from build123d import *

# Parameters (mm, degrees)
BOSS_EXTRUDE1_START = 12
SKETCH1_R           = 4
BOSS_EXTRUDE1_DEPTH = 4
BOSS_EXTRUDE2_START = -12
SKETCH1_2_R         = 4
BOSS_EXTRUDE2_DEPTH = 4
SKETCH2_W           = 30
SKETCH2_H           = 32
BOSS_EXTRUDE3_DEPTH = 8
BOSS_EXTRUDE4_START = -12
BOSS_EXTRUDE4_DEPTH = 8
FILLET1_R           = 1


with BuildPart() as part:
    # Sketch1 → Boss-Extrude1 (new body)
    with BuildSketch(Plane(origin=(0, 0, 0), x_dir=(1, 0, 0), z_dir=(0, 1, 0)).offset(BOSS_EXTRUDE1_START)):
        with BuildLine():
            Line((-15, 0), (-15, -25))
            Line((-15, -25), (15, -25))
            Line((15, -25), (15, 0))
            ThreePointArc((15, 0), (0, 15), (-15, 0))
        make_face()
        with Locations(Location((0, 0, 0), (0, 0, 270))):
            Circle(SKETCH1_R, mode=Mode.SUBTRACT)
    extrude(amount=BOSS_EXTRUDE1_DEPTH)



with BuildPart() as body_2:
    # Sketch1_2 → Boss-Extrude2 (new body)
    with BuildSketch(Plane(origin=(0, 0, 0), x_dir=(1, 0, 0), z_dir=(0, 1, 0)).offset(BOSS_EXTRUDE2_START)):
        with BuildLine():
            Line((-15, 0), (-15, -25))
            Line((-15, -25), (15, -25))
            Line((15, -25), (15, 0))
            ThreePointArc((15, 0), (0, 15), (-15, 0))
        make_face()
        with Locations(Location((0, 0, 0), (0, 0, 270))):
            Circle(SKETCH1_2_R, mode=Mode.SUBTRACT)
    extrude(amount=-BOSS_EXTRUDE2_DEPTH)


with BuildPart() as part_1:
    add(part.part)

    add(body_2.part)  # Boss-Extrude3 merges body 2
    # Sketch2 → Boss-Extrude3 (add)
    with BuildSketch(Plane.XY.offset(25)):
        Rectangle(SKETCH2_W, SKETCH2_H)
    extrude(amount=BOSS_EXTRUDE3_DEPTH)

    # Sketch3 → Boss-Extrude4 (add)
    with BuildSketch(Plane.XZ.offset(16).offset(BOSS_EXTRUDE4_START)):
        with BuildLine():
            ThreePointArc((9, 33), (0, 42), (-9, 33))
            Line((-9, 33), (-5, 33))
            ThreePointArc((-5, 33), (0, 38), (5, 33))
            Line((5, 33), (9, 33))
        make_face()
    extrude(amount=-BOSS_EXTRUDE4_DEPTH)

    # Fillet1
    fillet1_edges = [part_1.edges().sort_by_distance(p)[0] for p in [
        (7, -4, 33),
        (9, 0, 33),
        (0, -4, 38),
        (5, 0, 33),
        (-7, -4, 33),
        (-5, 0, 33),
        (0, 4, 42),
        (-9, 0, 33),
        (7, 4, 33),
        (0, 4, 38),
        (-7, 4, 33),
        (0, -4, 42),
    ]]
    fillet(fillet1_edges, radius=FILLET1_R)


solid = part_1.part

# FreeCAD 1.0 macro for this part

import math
import FreeCAD as App
import Part
import Sketcher

V = App.Vector
Q = App.Units.Quantity


def edges_at(feature, points):
    """Names of the edges that pass closest to the given points."""
    edges = feature.Shape.Edges
    near = lambda p: min(range(len(edges)), key=lambda i: edges[i].distToShape(Part.Vertex(*p))[0])
    return sorted({f"Edge{near(p) + 1}" for p in points})

doc = App.newDocument("Part")
body = doc.addObject("PartDesign::Body", "Body")

sketch1 = body.newObject("Sketcher::SketchObject", "Sketch")
sketch1.AttachmentSupport = (doc.getObject("XZ_Plane"), [""])
sketch1.MapMode = "FlatFace"
sketch1.AttachmentOffset = App.Placement(V(0, 0, -12), App.Rotation())
sketch1.addGeometry(Part.LineSegment(V(-15, 0, 0), V(-15, 25, 0)), False)
sketch1.addGeometry(Part.LineSegment(V(-15, 25, 0), V(15, 25, 0)), False)
sketch1.addGeometry(Part.LineSegment(V(15, 25, 0), V(15, 0, 0)), False)
sketch1.addGeometry(Part.ArcOfCircle(Part.Circle(V(0, 0, 0), V(0, 0, 1), 15), math.radians(180), math.radians(360)), False)
sketch1.addGeometry(Part.Circle(V(0, 0, 0), V(0, 0, 1), 4), False)
sketch1.addConstraint(Sketcher.Constraint("Coincident", 0, 2, 1, 1))
sketch1.addConstraint(Sketcher.Constraint("Coincident", 1, 2, 2, 1))
sketch1.addConstraint(Sketcher.Constraint("Tangent", 2, 2, 3, 2))
sketch1.addConstraint(Sketcher.Constraint("Tangent", 3, 1, 0, 1))
sketch1.addConstraint(Sketcher.Constraint("Vertical", 0))
sketch1.addConstraint(Sketcher.Constraint("Horizontal", 1))
sketch1.addConstraint(Sketcher.Constraint("Vertical", 2))
sketch1.addConstraint(Sketcher.Constraint("Coincident", 3, 3, -1, 1))
sketch1.addConstraint(Sketcher.Constraint("Coincident", 4, 3, -1, 1))
sketch1.addConstraint(Sketcher.Constraint("Diameter", 4, Q("8 mm")))
sketch1.addConstraint(Sketcher.Constraint("Radius", 3, Q("15 mm")))
sketch1.addConstraint(Sketcher.Constraint("DistanceY", 0, 1, 0, 2, Q("25 mm")))
pad1 = body.newObject("PartDesign::Pad", "Pad")
pad1.Profile = sketch1
pad1.Length = 4
pad1.Reversed = True
body2 = doc.addObject("PartDesign::Body", "Body001")

sketch2 = body2.newObject("Sketcher::SketchObject", "Sketch001")
sketch2.AttachmentSupport = (doc.getObject("XZ_Plane001"), [""])
sketch2.MapMode = "FlatFace"
sketch2.AttachmentOffset = App.Placement(V(0, 0, 12), App.Rotation())
sketch2.addGeometry(Part.LineSegment(V(-15, 0, 0), V(-15, 25, 0)), False)
sketch2.addGeometry(Part.LineSegment(V(-15, 25, 0), V(15, 25, 0)), False)
sketch2.addGeometry(Part.LineSegment(V(15, 25, 0), V(15, 0, 0)), False)
sketch2.addGeometry(Part.ArcOfCircle(Part.Circle(V(0, 0, 0), V(0, 0, 1), 15), math.radians(180), math.radians(360)), False)
sketch2.addGeometry(Part.Circle(V(0, 0, 0), V(0, 0, 1), 4), False)
sketch2.addConstraint(Sketcher.Constraint("Coincident", 0, 2, 1, 1))
sketch2.addConstraint(Sketcher.Constraint("Coincident", 1, 2, 2, 1))
sketch2.addConstraint(Sketcher.Constraint("Tangent", 2, 2, 3, 2))
sketch2.addConstraint(Sketcher.Constraint("Tangent", 3, 1, 0, 1))
sketch2.addConstraint(Sketcher.Constraint("Vertical", 0))
sketch2.addConstraint(Sketcher.Constraint("Horizontal", 1))
sketch2.addConstraint(Sketcher.Constraint("Vertical", 2))
sketch2.addConstraint(Sketcher.Constraint("Coincident", 3, 3, -1, 1))
sketch2.addConstraint(Sketcher.Constraint("Coincident", 4, 3, -1, 1))
sketch2.addConstraint(Sketcher.Constraint("Diameter", 4, Q("8 mm")))
sketch2.addConstraint(Sketcher.Constraint("Radius", 3, Q("15 mm")))
sketch2.addConstraint(Sketcher.Constraint("DistanceY", 0, 1, 0, 2, Q("25 mm")))
pad2 = body2.newObject("PartDesign::Pad", "Pad001")
pad2.Profile = sketch2
pad2.Length = 4
body.AllowCompound = True
doc.recompute()

boolean = body.newObject("PartDesign::Boolean", "Boolean")
boolean.Type = "Fuse"
boolean.addObjects([body2])

sketch3 = body.newObject("Sketcher::SketchObject", "Sketch002")
sketch3.AttachmentSupport = (doc.getObject("XY_Plane"), [""])
sketch3.MapMode = "FlatFace"
sketch3.AttachmentOffset = App.Placement(V(0, 0, 25), App.Rotation())
sketch3.addGeometry(Part.LineSegment(V(-15, 16, 0), V(-15, -16, 0)), False)
sketch3.addGeometry(Part.LineSegment(V(-15, -16, 0), V(15, -16, 0)), False)
sketch3.addGeometry(Part.LineSegment(V(15, -16, 0), V(15, 16, 0)), False)
sketch3.addGeometry(Part.LineSegment(V(15, 16, 0), V(-15, 16, 0)), False)
sketch3.addConstraint(Sketcher.Constraint("Coincident", 0, 2, 1, 1))
sketch3.addConstraint(Sketcher.Constraint("Coincident", 1, 2, 2, 1))
sketch3.addConstraint(Sketcher.Constraint("Coincident", 2, 2, 3, 1))
sketch3.addConstraint(Sketcher.Constraint("Coincident", 3, 2, 0, 1))
sketch3.addConstraint(Sketcher.Constraint("Vertical", 0))
sketch3.addConstraint(Sketcher.Constraint("Horizontal", 1))
sketch3.addConstraint(Sketcher.Constraint("Vertical", 2))
sketch3.addConstraint(Sketcher.Constraint("Horizontal", 3))
sketch3.addConstraint(Sketcher.Constraint("Symmetric", 0, 2, 2, 2, -1, 1))
sketch3.addConstraint(Sketcher.Constraint("DistanceX", 1, 1, 1, 2, Q("30 mm")))
sketch3.addConstraint(Sketcher.Constraint("DistanceY", 0, 2, 0, 1, Q("32 mm")))
pad3 = body.newObject("PartDesign::Pad", "Pad002")
pad3.Profile = sketch3
pad3.Length = 8

sketch4 = body.newObject("Sketcher::SketchObject", "Sketch003")
sketch4.AttachmentSupport = (doc.getObject("XZ_Plane"), [""])
sketch4.MapMode = "FlatFace"
sketch4.AttachmentOffset = App.Placement(V(0, 0, 4), App.Rotation())
sketch4.addGeometry(Part.ArcOfCircle(Part.Circle(V(0, 33, 0), V(0, 0, 1), 9), math.radians(0), math.radians(180)), False)
sketch4.addGeometry(Part.LineSegment(V(-9, 33, 0), V(-5, 33, 0)), False)
sketch4.addGeometry(Part.ArcOfCircle(Part.Circle(V(0, 33, 0), V(0, 0, 1), 5), math.radians(0), math.radians(180)), False)
sketch4.addGeometry(Part.LineSegment(V(5, 33, 0), V(9, 33, 0)), False)
sketch4.addConstraint(Sketcher.Constraint("Coincident", 0, 2, 1, 1))
sketch4.addConstraint(Sketcher.Constraint("Coincident", 1, 2, 2, 2))
sketch4.addConstraint(Sketcher.Constraint("Coincident", 2, 1, 3, 1))
sketch4.addConstraint(Sketcher.Constraint("Coincident", 3, 2, 0, 1))
sketch4.addConstraint(Sketcher.Constraint("Horizontal", 1))
sketch4.addConstraint(Sketcher.Constraint("Horizontal", 3))
sketch4.addConstraint(Sketcher.Constraint("Coincident", 2, 3, 0, 3))
sketch4.addConstraint(Sketcher.Constraint("Symmetric", 1, 2, 2, 1, -2))
sketch4.addConstraint(Sketcher.Constraint("Horizontal", 2, 3, 0, 2))
sketch4.addConstraint(Sketcher.Constraint("Radius", 0, Q("9 mm")))
sketch4.addConstraint(Sketcher.Constraint("Radius", 2, Q("5 mm")))
sketch4.addConstraint(Sketcher.Constraint("DistanceY", -1, 1, 0, 3, Q("33 mm")))
pad4 = body.newObject("PartDesign::Pad", "Pad003")
pad4.Profile = sketch4
pad4.Length = 8
pad4.Reversed = True
doc.recompute()

fillet = body.newObject("PartDesign::Fillet", "Fillet")
fillet.Base = (pad4, edges_at(pad4, [
    (7, -4, 33),
    (9, 0, 33),
    (0, -4, 38),
    (5, 0, 33),
    (-7, -4, 33),
    (-5, 0, 33),
    (0, 4, 42),
    (-9, 0, 33),
    (7, 4, 33),
    (0, 4, 38),
    (-7, 4, 33),
    (0, -4, 42),
]))
fillet.Radius = 1

doc.recompute()
